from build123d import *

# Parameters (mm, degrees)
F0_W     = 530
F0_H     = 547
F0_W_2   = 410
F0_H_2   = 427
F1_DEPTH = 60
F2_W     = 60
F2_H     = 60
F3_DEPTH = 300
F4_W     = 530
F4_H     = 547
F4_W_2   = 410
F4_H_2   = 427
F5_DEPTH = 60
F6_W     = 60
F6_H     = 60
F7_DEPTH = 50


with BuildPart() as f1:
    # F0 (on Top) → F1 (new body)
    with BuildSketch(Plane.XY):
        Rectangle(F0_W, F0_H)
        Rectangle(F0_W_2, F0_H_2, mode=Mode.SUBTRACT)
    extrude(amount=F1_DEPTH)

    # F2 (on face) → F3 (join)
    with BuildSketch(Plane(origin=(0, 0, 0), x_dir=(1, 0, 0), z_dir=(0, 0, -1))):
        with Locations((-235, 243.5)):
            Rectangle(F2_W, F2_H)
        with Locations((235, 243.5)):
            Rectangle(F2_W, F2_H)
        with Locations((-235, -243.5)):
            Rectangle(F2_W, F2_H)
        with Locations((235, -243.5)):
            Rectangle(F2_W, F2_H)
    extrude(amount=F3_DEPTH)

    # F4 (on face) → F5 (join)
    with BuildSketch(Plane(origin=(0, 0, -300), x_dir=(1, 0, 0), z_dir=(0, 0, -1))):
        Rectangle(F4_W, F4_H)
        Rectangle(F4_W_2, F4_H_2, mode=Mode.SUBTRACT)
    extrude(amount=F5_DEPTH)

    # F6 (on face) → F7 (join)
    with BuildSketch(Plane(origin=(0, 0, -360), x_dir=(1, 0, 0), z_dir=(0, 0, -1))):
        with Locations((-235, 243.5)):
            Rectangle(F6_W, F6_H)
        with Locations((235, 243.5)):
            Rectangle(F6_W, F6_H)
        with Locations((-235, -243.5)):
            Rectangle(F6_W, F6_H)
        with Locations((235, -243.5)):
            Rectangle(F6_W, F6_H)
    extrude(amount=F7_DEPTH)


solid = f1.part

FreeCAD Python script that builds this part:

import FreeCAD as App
import Part
import Sketcher
Q = App.Units.Quantity


def add_polygon(sketch, points):
    """Adds a closed chain of lines whose ends are joined by coincident constraints."""
    first, n = sketch.GeometryCount, len(points)
    for a, b in zip(points, points[1:] + points[:1]):
        sketch.addGeometry(Part.LineSegment(App.Vector(*a, 0), App.Vector(*b, 0)), False)
    for i in range(n):
        sketch.addConstraint(Sketcher.Constraint("Coincident", first + i, 2, first + (i + 1) % n, 1))

doc = App.newDocument("Part")
body = doc.addObject("PartDesign::Body", "Body")

# Sketch on XY plane
sketch1 = body.newObject("Sketcher::SketchObject", "Sketch")
sketch1.AttachmentSupport = (doc.getObject("XY_Plane"), [""])
sketch1.MapMode = "FlatFace"
add_polygon(sketch1, [(-265, 273.5), (-265, -273.5), (265, -273.5), (265, 273.5)])  # lines 0-3
add_polygon(sketch1, [(205, -213.5), (-205, -213.5), (-205, 213.5), (205, 213.5)])  # lines 4-7
sketch1.addConstraint(Sketcher.Constraint("Vertical", 0))
sketch1.addConstraint(Sketcher.Constraint("Horizontal", 1))
sketch1.addConstraint(Sketcher.Constraint("Vertical", 2))
sketch1.addConstraint(Sketcher.Constraint("Horizontal", 3))
sketch1.addConstraint(Sketcher.Constraint("Horizontal", 4))
sketch1.addConstraint(Sketcher.Constraint("Vertical", 5))
sketch1.addConstraint(Sketcher.Constraint("Horizontal", 6))
sketch1.addConstraint(Sketcher.Constraint("Vertical", 7))
sketch1.addConstraint(Sketcher.Constraint("Symmetric", 0, 2, 2, 2, -1, 1))
sketch1.addConstraint(Sketcher.Constraint("Symmetric", 4, 2, 6, 2, -1, 1))
sketch1.addConstraint(Sketcher.Constraint("DistanceX", 1, 1, 1, 2, Q("530 mm")))
sketch1.addConstraint(Sketcher.Constraint("DistanceX", 4, 2, 4, 1, Q("410 mm")))
sketch1.addConstraint(Sketcher.Constraint("DistanceY", 0, 2, 0, 1, Q("547 mm")))
sketch1.addConstraint(Sketcher.Constraint("DistanceY", 5, 1, 5, 2, Q("427 mm")))
pad1 = body.newObject("PartDesign::Pad", "Pad")
pad1.Profile = sketch1
pad1.Length = 60

# Sketch on XY plane
sketch2 = body.newObject("Sketcher::SketchObject", "Sketch001")
sketch2.AttachmentSupport = (doc.getObject("XY_Plane"), [""])
sketch2.MapMode = "FlatFace"
add_polygon(sketch2, [(-265, -273.5), (-265, -213.5), (-205, -213.5), (-205, -273.5)])  # lines 0-3
add_polygon(sketch2, [(205, -273.5), (205, -213.5), (265, -213.5), (265, -273.5)])  # lines 4-7
add_polygon(sketch2, [(-265, 213.5), (-265, 273.5), (-205, 273.5), (-205, 213.5)])  # lines 8-11
add_polygon(sketch2, [(205, 213.5), (205, 273.5), (265, 273.5), (265, 213.5)])  # lines 12-15
sketch2.addConstraint(Sketcher.Constraint("Vertical", 0))
sketch2.addConstraint(Sketcher.Constraint("Horizontal", 1))
sketch2.addConstraint(Sketcher.Constraint("Vertical", 2))
sketch2.addConstraint(Sketcher.Constraint("Horizontal", 3))
sketch2.addConstraint(Sketcher.Constraint("Vertical", 4))
sketch2.addConstraint(Sketcher.Constraint("Horizontal", 5))
sketch2.addConstraint(Sketcher.Constraint("Vertical", 6))
sketch2.addConstraint(Sketcher.Constraint("Horizontal", 7))
sketch2.addConstraint(Sketcher.Constraint("Vertical", 8))
sketch2.addConstraint(Sketcher.Constraint("Horizontal", 9))
sketch2.addConstraint(Sketcher.Constraint("Vertical", 10))
sketch2.addConstraint(Sketcher.Constraint("Horizontal", 11))
sketch2.addConstraint(Sketcher.Constraint("Vertical", 12))
sketch2.addConstraint(Sketcher.Constraint("Horizontal", 13))
sketch2.addConstraint(Sketcher.Constraint("Vertical", 14))
sketch2.addConstraint(Sketcher.Constraint("Horizontal", 15))
sketch2.addConstraint(Sketcher.Constraint("Symmetric", 6, 2, 8, 2, -1, 1))
sketch2.addConstraint(Sketcher.Constraint("Symmetric", 4, 2, 10, 2, -1, 1))
sketch2.addConstraint(Sketcher.Constraint("Symmetric", 2, 2, 12, 2, -1, 1))
sketch2.addConstraint(Sketcher.Constraint("Symmetric", 0, 2, 14, 2, -1, 1))
sketch2.addConstraint(Sketcher.Constraint("Symmetric", 1, 2, 4, 2, -2))
sketch2.addConstraint(Sketcher.Constraint("Symmetric", 3, 2, 6, 2, -2))
sketch2.addConstraint(Sketcher.Constraint("Equal", 15, 0))
sketch2.addConstraint(Sketcher.Constraint("DistanceX", 1, 1, 1, 2, Q("60 mm")))
sketch2.addConstraint(Sketcher.Constraint("DistanceX", 0, 2, -1, 1, Q("265 mm")))
sketch2.addConstraint(Sketcher.Constraint("DistanceY", 0, 2, 8, 2, Q("487 mm")))
pad2 = body.newObject("PartDesign::Pad", "Pad001")
pad2.Profile = sketch2
pad2.Length = 300
pad2.Reversed = True

# Sketch on XY plane
sketch3 = body.newObject("Sketcher::SketchObject", "Sketch002")
sketch3.AttachmentSupport = (doc.getObject("XY_Plane"), [""])
sketch3.MapMode = "FlatFace"
sketch3.AttachmentOffset = App.Placement(App.Vector(0, 0, -300), App.Rotation())
add_polygon(sketch3, [(-265, -273.5), (-265, 273.5), (265, 273.5), (265, -273.5)])  # lines 0-3
add_polygon(sketch3, [(205, 213.5), (-205, 213.5), (-205, -213.5), (205, -213.5)])  # lines 4-7
sketch3.addConstraint(Sketcher.Constraint("Vertical", 0))
sketch3.addConstraint(Sketcher.Constraint("Horizontal", 1))
sketch3.addConstraint(Sketcher.Constraint("Vertical", 2))
sketch3.addConstraint(Sketcher.Constraint("Horizontal", 3))
sketch3.addConstraint(Sketcher.Constraint("Horizontal", 4))
sketch3.addConstraint(Sketcher.Constraint("Vertical", 5))
sketch3.addConstraint(Sketcher.Constraint("Horizontal", 6))
sketch3.addConstraint(Sketcher.Constraint("Vertical", 7))
sketch3.addConstraint(Sketcher.Constraint("Symmetric", 0, 2, 2, 2, -1, 1))
sketch3.addConstraint(Sketcher.Constraint("Symmetric", 4, 2, 6, 2, -1, 1))
sketch3.addConstraint(Sketcher.Constraint("DistanceX", 1, 1, 1, 2, Q("530 mm")))
sketch3.addConstraint(Sketcher.Constraint("DistanceX", 4, 2, 4, 1, Q("410 mm")))
sketch3.addConstraint(Sketcher.Constraint("DistanceY", 0, 1, 0, 2, Q("547 mm")))
sketch3.addConstraint(Sketcher.Constraint("DistanceY", 5, 2, 5, 1, Q("427 mm")))
pad3 = body.newObject("PartDesign::Pad", "Pad002")
pad3.Profile = sketch3
pad3.Length = 60
pad3.Reversed = True

# Sketch on XY plane
sketch4 = body.newObject("Sketcher::SketchObject", "Sketch003")
sketch4.AttachmentSupport = (doc.getObject("XY_Plane"), [""])
sketch4.MapMode = "FlatFace"
sketch4.AttachmentOffset = App.Placement(App.Vector(0, 0, -360), App.Rotation())
add_polygon(sketch4, [(-265, -273.5), (-265, -213.5), (-205, -213.5), (-205, -273.5)])  # lines 0-3
add_polygon(sketch4, [(205, -273.5), (205, -213.5), (265, -213.5), (265, -273.5)])  # lines 4-7
add_polygon(sketch4, [(-265, 213.5), (-265, 273.5), (-205, 273.5), (-205, 213.5)])  # lines 8-11
add_polygon(sketch4, [(205, 213.5), (205, 273.5), (265, 273.5), (265, 213.5)])  # lines 12-15
sketch4.addConstraint(Sketcher.Constraint("Vertical", 0))
sketch4.addConstraint(Sketcher.Constraint("Horizontal", 1))
sketch4.addConstraint(Sketcher.Constraint("Vertical", 2))
sketch4.addConstraint(Sketcher.Constraint("Horizontal", 3))
sketch4.addConstraint(Sketcher.Constraint("Vertical", 4))
sketch4.addConstraint(Sketcher.Constraint("Horizontal", 5))
sketch4.addConstraint(Sketcher.Constraint("Vertical", 6))
sketch4.addConstraint(Sketcher.Constraint("Horizontal", 7))
sketch4.addConstraint(Sketcher.Constraint("Vertical", 8))
sketch4.addConstraint(Sketcher.Constraint("Horizontal", 9))
sketch4.addConstraint(Sketcher.Constraint("Vertical", 10))
sketch4.addConstraint(Sketcher.Constraint("Horizontal", 11))
sketch4.addConstraint(Sketcher.Constraint("Vertical", 12))
sketch4.addConstraint(Sketcher.Constraint("Horizontal", 13))
sketch4.addConstraint(Sketcher.Constraint("Vertical", 14))
sketch4.addConstraint(Sketcher.Constraint("Horizontal", 15))
sketch4.addConstraint(Sketcher.Constraint("Symmetric", 6, 2, 8, 2, -1, 1))
sketch4.addConstraint(Sketcher.Constraint("Symmetric", 4, 2, 10, 2, -1, 1))
sketch4.addConstraint(Sketcher.Constraint("Symmetric", 2, 2, 12, 2, -1, 1))
sketch4.addConstraint(Sketcher.Constraint("Symmetric", 0, 2, 14, 2, -1, 1))
sketch4.addConstraint(Sketcher.Constraint("Symmetric", 1, 2, 4, 2, -2))
sketch4.addConstraint(Sketcher.Constraint("Symmetric", 3, 2, 6, 2, -2))
sketch4.addConstraint(Sketcher.Constraint("Equal", 15, 0))
sketch4.addConstraint(Sketcher.Constraint("DistanceX", 1, 1, 1, 2, Q("60 mm")))
sketch4.addConstraint(Sketcher.Constraint("DistanceX", 0, 2, -1, 1, Q("265 mm")))
sketch4.addConstraint(Sketcher.Constraint("DistanceY", 0, 2, 8, 2, Q("487 mm")))
pad4 = body.newObject("PartDesign::Pad", "Pad003")
pad4.Profile = sketch4
pad4.Length = 50
pad4.Reversed = True

doc.recompute()
